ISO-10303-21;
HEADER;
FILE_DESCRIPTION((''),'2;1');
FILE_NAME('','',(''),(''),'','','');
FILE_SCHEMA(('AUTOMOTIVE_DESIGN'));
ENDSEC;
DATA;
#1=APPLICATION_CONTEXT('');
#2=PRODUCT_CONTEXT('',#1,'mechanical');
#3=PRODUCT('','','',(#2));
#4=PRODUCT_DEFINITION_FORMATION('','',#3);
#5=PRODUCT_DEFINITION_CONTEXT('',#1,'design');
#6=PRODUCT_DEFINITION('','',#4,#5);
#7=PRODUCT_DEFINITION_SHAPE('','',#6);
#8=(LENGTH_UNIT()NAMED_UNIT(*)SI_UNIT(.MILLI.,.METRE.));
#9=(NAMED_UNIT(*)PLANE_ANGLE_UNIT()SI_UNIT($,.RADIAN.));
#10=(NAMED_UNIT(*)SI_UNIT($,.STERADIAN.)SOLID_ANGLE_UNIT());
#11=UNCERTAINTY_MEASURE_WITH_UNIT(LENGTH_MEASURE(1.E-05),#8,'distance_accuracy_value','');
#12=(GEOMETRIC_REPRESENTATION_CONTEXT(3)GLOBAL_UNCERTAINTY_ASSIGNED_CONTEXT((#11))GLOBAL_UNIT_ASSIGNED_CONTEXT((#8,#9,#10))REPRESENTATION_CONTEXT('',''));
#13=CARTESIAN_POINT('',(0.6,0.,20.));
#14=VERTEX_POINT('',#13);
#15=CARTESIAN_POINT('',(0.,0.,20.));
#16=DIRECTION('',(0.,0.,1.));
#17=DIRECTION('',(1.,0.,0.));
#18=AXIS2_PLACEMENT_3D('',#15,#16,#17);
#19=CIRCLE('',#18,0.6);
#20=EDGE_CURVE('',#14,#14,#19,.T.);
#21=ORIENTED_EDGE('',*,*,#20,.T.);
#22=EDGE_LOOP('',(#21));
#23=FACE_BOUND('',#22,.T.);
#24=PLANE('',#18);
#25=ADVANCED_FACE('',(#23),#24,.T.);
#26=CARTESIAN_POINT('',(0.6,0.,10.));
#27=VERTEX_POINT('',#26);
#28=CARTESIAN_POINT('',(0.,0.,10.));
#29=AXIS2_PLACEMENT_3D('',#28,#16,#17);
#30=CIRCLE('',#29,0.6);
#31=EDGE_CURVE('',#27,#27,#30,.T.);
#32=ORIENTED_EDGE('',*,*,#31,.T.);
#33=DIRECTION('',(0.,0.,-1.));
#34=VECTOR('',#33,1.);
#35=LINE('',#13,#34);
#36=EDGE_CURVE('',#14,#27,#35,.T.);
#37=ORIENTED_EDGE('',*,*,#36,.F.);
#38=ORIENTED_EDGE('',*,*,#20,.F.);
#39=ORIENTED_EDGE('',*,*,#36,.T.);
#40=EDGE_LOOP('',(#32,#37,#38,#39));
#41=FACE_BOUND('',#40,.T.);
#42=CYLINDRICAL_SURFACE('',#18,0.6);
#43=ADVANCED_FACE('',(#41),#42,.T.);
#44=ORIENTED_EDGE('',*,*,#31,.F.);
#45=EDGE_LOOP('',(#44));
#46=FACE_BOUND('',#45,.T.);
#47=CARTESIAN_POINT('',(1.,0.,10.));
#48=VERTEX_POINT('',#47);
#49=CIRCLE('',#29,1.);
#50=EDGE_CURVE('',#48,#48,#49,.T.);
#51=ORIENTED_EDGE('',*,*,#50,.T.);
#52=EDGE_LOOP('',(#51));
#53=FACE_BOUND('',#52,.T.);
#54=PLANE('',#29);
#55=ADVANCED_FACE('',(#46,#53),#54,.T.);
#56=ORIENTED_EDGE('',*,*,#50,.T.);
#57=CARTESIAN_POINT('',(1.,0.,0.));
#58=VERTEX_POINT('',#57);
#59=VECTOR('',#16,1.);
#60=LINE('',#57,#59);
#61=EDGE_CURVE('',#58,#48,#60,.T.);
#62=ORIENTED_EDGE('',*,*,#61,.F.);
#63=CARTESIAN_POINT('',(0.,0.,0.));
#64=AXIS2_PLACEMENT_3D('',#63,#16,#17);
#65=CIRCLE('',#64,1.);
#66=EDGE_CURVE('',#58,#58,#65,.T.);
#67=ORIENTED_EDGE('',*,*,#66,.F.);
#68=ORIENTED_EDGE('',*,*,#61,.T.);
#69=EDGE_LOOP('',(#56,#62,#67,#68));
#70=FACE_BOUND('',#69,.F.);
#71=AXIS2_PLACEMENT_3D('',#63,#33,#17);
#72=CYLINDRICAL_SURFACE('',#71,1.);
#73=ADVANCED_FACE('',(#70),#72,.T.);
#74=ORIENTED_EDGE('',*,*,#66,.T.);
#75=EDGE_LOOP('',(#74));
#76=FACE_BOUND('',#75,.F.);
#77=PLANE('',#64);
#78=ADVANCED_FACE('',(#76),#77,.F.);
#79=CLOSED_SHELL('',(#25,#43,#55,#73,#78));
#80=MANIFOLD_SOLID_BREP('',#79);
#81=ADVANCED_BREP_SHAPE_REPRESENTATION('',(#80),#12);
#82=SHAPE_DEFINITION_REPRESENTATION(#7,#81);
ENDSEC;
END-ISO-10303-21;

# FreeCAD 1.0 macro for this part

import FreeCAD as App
import Part
import Sketcher
from FreeCAD import Vector
Q = App.Units.Quantity

doc = App.newDocument("Part")
params = doc.addObject("Spreadsheet::Sheet", "Params")
for row, (alias, value) in enumerate([
    ("sketch1_diameter", "2 mm"),
    ("pad1_length", "20 mm"),
    ("sketch2_diameter", "1.2 mm"),
    ("sketch2_diameter2", "2 mm"),
    ("pocket1_length", "10 mm"),
], start=1):
    params.set(f"A{row}", alias)
    params.set(f"B{row}", "=" + value)
    params.setAlias(f"B{row}", alias)

body = doc.addObject("PartDesign::Body", "Body")

# Sketch on XY plane
sketch1 = body.newObject("Sketcher::SketchObject", "Sketch")
sketch1.AttachmentSupport = (doc.getObject("XY_Plane"), [""])
sketch1.MapMode = "FlatFace"
sketch1.addGeometry(Part.Circle(Vector(0, 0, 0), Vector(0, 0, 1), 1), False)
sketch1.addConstraint(Sketcher.Constraint("Coincident", 0, 3, -1, 1))
sketch1.addConstraint(Sketcher.Constraint("Diameter", 0, Q("2 mm")))
sketch1.setExpression("Constraints[1]", "Params.sketch1_diameter")
pad1 = body.newObject("PartDesign::Pad", "Pad")
pad1.Profile = sketch1
pad1.setExpression("Length", "Params.pad1_length")

# Sketch on XY plane
sketch2 = body.newObject("Sketcher::SketchObject", "Sketch001")
sketch2.AttachmentSupport = (doc.getObject("XY_Plane"), [""])
sketch2.MapMode = "FlatFace"
sketch2.AttachmentOffset = App.Placement(Vector(0, 0, 20), App.Rotation())
sketch2.addGeometry(Part.Circle(Vector(0, 0, 0), Vector(0, 0, 1), 1), False)
sketch2.addGeometry(Part.Circle(Vector(0, 0, 0), Vector(0, 0, 1), 0.6), False)
sketch2.addConstraint(Sketcher.Constraint("Coincident", 0, 3, -1, 1))
sketch2.addConstraint(Sketcher.Constraint("Coincident", 1, 3, -1, 1))
sketch2.addConstraint(Sketcher.Constraint("Diameter", 1, Q("1.2 mm")))
sketch2.addConstraint(Sketcher.Constraint("Diameter", 0, Q("2 mm")))
sketch2.setExpression("Constraints[2]", "Params.sketch2_diameter")
sketch2.setExpression("Constraints[3]", "Params.sketch2_diameter2")
pocket1 = body.newObject("PartDesign::Pocket", "Pocket")
pocket1.Profile = sketch2
pocket1.setExpression("Length", "Params.pocket1_length")

doc.recompute()
